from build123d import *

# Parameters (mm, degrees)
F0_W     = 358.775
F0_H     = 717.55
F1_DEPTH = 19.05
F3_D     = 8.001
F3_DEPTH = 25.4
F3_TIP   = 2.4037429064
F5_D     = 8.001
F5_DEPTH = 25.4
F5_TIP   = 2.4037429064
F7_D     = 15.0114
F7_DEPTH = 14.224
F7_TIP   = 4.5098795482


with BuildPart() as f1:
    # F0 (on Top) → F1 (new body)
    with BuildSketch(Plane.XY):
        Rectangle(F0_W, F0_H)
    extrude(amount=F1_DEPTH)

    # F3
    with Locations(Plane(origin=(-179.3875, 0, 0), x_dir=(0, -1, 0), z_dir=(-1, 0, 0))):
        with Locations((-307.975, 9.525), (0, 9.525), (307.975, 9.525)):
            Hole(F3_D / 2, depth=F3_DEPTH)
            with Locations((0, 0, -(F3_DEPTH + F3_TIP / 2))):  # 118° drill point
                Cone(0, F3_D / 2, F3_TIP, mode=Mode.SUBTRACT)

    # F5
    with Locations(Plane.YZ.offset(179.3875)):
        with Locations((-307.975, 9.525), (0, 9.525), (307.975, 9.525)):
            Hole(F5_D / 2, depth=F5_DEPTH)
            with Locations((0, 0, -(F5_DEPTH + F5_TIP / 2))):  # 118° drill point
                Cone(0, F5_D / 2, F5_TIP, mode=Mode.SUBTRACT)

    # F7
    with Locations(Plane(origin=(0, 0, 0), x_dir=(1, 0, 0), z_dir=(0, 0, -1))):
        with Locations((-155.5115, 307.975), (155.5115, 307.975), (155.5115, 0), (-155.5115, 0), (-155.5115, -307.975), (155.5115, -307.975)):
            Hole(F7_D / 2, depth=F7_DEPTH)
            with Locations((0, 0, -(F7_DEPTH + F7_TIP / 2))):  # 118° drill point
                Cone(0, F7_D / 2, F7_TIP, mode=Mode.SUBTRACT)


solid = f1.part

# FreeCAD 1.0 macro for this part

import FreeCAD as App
import Part
import Sketcher
Q = App.Units.Quantity

doc = App.newDocument("Part")
body = doc.addObject("PartDesign::Body", "Body")

# Sketch on XY plane
sketch1 = body.newObject("Sketcher::SketchObject", "Sketch")
sketch1.AttachmentSupport = (doc.getObject("XY_Plane"), [""])
sketch1.MapMode = "FlatFace"
sketch1.addGeometry([
    Part.LineSegment(App.Vector(-179.3875, 358.775, 0), App.Vector(-179.3875, -358.775, 0)),
    Part.LineSegment(App.Vector(-179.3875, -358.775, 0), App.Vector(179.3875, -358.775, 0)),
    Part.LineSegment(App.Vector(179.3875, -358.775, 0), App.Vector(179.3875, 358.775, 0)),
    Part.LineSegment(App.Vector(179.3875, 358.775, 0), App.Vector(-179.3875, 358.775, 0)),
], False)
sketch1.addConstraint([
    Sketcher.Constraint("Coincident", 0, 2, 1, 1),
    Sketcher.Constraint("Coincident", 1, 2, 2, 1),
    Sketcher.Constraint("Coincident", 2, 2, 3, 1),
    Sketcher.Constraint("Coincident", 3, 2, 0, 1),
    Sketcher.Constraint("Vertical", 0),
    Sketcher.Constraint("Horizontal", 1),
    Sketcher.Constraint("Vertical", 2),
    Sketcher.Constraint("Horizontal", 3),
    Sketcher.Constraint("Symmetric", 0, 2, 2, 2, -1, 1),
    Sketcher.Constraint("DistanceY", 0, 2, 0, 1, Q("28.25 in")),
    Sketcher.Constraint("DistanceX", 1, 1, 1, 2, Q("14.125 in")),
])
pad1 = body.newObject("PartDesign::Pad", "Pad")
pad1.Profile = sketch1
pad1.Length = Q("0.75 in")

# Sketch on YZ plane
sketch2 = body.newObject("Sketcher::SketchObject", "Sketch001")
sketch2.AttachmentSupport = (doc.getObject("YZ_Plane"), [""])
sketch2.MapMode = "FlatFace"
sketch2.AttachmentOffset = App.Placement(App.Vector(0, 0, -7.0625 * 25.4), App.Rotation())
sketch2.addGeometry([
    Part.Circle(App.Vector(307.975, 9.525, 0), App.Vector(0, 0, 1), 4.0005),
    Part.Circle(App.Vector(0, 9.525, 0), App.Vector(0, 0, 1), 4.0005),
    Part.Circle(App.Vector(-307.975, 9.525, 0), App.Vector(0, 0, 1), 4.0005),
], False)
sketch2.addConstraint([
    Sketcher.Constraint("Equal", 0, 1),
    Sketcher.Constraint("Equal", 1, 2),
    Sketcher.Constraint("Symmetric", 0, 3, 2, 3, -2),
    Sketcher.Constraint("PointOnObject", 1, 3, -2),
    Sketcher.Constraint("Horizontal", 0, 3, 1, 3),
    Sketcher.Constraint("Diameter", 0, Q("0.315 in")),
    Sketcher.Constraint("DistanceX", 2, 3, 0, 3, Q("24.25 in")),
    Sketcher.Constraint("DistanceY", -1, 1, 0, 3, Q("0.375 in")),
])
doc.recompute()
hole = body.newObject("PartDesign::Hole", "Hole")
hole.Profile = sketch2
hole.ThreadType = "None"
hole.Diameter = Q("0.315 in")
hole.DepthType = "Dimension"
hole.Depth = Q("1 in")
hole.DrillPoint = "Angled"
hole.DrillPointAngle = 118
hole.Reversed = True

# Sketch on YZ plane
sketch3 = body.newObject("Sketcher::SketchObject", "Sketch002")
sketch3.AttachmentSupport = (doc.getObject("YZ_Plane"), [""])
sketch3.MapMode = "FlatFace"
sketch3.AttachmentOffset = App.Placement(App.Vector(0, 0, 7.0625 * 25.4), App.Rotation())
sketch3.addGeometry([
    Part.Circle(App.Vector(-307.975, 9.525, 0), App.Vector(0, 0, 1), 4.0005),
    Part.Circle(App.Vector(0, 9.525, 0), App.Vector(0, 0, 1), 4.0005),
    Part.Circle(App.Vector(307.975, 9.525, 0), App.Vector(0, 0, 1), 4.0005),
], False)
sketch3.addConstraint([
    Sketcher.Constraint("Equal", 0, 1),
    Sketcher.Constraint("Equal", 1, 2),
    Sketcher.Constraint("Symmetric", 0, 3, 2, 3, -2),
    Sketcher.Constraint("PointOnObject", 1, 3, -2),
    Sketcher.Constraint("Horizontal", 0, 3, 1, 3),
    Sketcher.Constraint("Diameter", 0, Q("0.315 in")),
    Sketcher.Constraint("DistanceX", 0, 3, 2, 3, Q("24.25 in")),
    Sketcher.Constraint("DistanceY", -1, 1, 0, 3, Q("0.375 in")),
])
doc.recompute()
hole2 = body.newObject("PartDesign::Hole", "Hole001")
hole2.Profile = sketch3
hole2.ThreadType = "None"
hole2.Diameter = Q("0.315 in")
hole2.DepthType = "Dimension"
hole2.Depth = Q("1 in")
hole2.DrillPoint = "Angled"
hole2.DrillPointAngle = 118

# Sketch on XY plane
sketch4 = body.newObject("Sketcher::SketchObject", "Sketch003")
sketch4.AttachmentSupport = (doc.getObject("XY_Plane"), [""])
sketch4.MapMode = "FlatFace"
sketch4.addGeometry([
    Part.Circle(App.Vector(-155.5115, -307.975, 0), App.Vector(0, 0, 1), 7.5057),  # 0
    Part.Circle(App.Vector(155.5115, -307.975, 0), App.Vector(0, 0, 1), 7.5057),  # 1
    Part.Circle(App.Vector(155.5115, 0, 0), App.Vector(0, 0, 1), 7.5057),  # 2
    Part.Circle(App.Vector(-155.5115, 0, 0), App.Vector(0, 0, 1), 7.5057),  # 3
    Part.Circle(App.Vector(-155.5115, 307.975, 0), App.Vector(0, 0, 1), 7.5057),  # 4
    Part.Circle(App.Vector(155.5115, 307.975, 0), App.Vector(0, 0, 1), 7.5057),  # 5
], False)
sketch4.addConstraint([
    Sketcher.Constraint("Equal", 0, 1),
    Sketcher.Constraint("Equal", 1, 2),
    Sketcher.Constraint("Equal", 2, 3),
    Sketcher.Constraint("Equal", 3, 4),
    Sketcher.Constraint("Equal", 4, 5),
    Sketcher.Constraint("Symmetric", 2, 3, 3, 3, -1, 1),
    Sketcher.Constraint("Symmetric", 1, 3, 4, 3, -1, 1),
    Sketcher.Constraint("Symmetric", 0, 3, 5, 3, -1, 1),
    Sketcher.Constraint("Symmetric", 0, 3, 1, 3, -2),
    Sketcher.Constraint("PointOnObject", 2, 3, -1),
    Sketcher.Constraint("Vertical", 1, 3, 2, 3),
    Sketcher.Constraint("Diameter", 0, Q("0.591 in")),
    Sketcher.Constraint("DistanceY", 0, 3, 4, 3, Q("24.25 in")),
    Sketcher.Constraint("DistanceX", 0, 3, 1, 3, Q("12.245 in")),
])
doc.recompute()
hole3 = body.newObject("PartDesign::Hole", "Hole002")
hole3.Profile = sketch4
hole3.ThreadType = "None"
hole3.Diameter = Q("0.591 in")
hole3.DepthType = "Dimension"
hole3.Depth = Q("0.56 in")
hole3.DrillPoint = "Angled"
hole3.DrillPointAngle = 118
hole3.Reversed = True

doc.recompute()
